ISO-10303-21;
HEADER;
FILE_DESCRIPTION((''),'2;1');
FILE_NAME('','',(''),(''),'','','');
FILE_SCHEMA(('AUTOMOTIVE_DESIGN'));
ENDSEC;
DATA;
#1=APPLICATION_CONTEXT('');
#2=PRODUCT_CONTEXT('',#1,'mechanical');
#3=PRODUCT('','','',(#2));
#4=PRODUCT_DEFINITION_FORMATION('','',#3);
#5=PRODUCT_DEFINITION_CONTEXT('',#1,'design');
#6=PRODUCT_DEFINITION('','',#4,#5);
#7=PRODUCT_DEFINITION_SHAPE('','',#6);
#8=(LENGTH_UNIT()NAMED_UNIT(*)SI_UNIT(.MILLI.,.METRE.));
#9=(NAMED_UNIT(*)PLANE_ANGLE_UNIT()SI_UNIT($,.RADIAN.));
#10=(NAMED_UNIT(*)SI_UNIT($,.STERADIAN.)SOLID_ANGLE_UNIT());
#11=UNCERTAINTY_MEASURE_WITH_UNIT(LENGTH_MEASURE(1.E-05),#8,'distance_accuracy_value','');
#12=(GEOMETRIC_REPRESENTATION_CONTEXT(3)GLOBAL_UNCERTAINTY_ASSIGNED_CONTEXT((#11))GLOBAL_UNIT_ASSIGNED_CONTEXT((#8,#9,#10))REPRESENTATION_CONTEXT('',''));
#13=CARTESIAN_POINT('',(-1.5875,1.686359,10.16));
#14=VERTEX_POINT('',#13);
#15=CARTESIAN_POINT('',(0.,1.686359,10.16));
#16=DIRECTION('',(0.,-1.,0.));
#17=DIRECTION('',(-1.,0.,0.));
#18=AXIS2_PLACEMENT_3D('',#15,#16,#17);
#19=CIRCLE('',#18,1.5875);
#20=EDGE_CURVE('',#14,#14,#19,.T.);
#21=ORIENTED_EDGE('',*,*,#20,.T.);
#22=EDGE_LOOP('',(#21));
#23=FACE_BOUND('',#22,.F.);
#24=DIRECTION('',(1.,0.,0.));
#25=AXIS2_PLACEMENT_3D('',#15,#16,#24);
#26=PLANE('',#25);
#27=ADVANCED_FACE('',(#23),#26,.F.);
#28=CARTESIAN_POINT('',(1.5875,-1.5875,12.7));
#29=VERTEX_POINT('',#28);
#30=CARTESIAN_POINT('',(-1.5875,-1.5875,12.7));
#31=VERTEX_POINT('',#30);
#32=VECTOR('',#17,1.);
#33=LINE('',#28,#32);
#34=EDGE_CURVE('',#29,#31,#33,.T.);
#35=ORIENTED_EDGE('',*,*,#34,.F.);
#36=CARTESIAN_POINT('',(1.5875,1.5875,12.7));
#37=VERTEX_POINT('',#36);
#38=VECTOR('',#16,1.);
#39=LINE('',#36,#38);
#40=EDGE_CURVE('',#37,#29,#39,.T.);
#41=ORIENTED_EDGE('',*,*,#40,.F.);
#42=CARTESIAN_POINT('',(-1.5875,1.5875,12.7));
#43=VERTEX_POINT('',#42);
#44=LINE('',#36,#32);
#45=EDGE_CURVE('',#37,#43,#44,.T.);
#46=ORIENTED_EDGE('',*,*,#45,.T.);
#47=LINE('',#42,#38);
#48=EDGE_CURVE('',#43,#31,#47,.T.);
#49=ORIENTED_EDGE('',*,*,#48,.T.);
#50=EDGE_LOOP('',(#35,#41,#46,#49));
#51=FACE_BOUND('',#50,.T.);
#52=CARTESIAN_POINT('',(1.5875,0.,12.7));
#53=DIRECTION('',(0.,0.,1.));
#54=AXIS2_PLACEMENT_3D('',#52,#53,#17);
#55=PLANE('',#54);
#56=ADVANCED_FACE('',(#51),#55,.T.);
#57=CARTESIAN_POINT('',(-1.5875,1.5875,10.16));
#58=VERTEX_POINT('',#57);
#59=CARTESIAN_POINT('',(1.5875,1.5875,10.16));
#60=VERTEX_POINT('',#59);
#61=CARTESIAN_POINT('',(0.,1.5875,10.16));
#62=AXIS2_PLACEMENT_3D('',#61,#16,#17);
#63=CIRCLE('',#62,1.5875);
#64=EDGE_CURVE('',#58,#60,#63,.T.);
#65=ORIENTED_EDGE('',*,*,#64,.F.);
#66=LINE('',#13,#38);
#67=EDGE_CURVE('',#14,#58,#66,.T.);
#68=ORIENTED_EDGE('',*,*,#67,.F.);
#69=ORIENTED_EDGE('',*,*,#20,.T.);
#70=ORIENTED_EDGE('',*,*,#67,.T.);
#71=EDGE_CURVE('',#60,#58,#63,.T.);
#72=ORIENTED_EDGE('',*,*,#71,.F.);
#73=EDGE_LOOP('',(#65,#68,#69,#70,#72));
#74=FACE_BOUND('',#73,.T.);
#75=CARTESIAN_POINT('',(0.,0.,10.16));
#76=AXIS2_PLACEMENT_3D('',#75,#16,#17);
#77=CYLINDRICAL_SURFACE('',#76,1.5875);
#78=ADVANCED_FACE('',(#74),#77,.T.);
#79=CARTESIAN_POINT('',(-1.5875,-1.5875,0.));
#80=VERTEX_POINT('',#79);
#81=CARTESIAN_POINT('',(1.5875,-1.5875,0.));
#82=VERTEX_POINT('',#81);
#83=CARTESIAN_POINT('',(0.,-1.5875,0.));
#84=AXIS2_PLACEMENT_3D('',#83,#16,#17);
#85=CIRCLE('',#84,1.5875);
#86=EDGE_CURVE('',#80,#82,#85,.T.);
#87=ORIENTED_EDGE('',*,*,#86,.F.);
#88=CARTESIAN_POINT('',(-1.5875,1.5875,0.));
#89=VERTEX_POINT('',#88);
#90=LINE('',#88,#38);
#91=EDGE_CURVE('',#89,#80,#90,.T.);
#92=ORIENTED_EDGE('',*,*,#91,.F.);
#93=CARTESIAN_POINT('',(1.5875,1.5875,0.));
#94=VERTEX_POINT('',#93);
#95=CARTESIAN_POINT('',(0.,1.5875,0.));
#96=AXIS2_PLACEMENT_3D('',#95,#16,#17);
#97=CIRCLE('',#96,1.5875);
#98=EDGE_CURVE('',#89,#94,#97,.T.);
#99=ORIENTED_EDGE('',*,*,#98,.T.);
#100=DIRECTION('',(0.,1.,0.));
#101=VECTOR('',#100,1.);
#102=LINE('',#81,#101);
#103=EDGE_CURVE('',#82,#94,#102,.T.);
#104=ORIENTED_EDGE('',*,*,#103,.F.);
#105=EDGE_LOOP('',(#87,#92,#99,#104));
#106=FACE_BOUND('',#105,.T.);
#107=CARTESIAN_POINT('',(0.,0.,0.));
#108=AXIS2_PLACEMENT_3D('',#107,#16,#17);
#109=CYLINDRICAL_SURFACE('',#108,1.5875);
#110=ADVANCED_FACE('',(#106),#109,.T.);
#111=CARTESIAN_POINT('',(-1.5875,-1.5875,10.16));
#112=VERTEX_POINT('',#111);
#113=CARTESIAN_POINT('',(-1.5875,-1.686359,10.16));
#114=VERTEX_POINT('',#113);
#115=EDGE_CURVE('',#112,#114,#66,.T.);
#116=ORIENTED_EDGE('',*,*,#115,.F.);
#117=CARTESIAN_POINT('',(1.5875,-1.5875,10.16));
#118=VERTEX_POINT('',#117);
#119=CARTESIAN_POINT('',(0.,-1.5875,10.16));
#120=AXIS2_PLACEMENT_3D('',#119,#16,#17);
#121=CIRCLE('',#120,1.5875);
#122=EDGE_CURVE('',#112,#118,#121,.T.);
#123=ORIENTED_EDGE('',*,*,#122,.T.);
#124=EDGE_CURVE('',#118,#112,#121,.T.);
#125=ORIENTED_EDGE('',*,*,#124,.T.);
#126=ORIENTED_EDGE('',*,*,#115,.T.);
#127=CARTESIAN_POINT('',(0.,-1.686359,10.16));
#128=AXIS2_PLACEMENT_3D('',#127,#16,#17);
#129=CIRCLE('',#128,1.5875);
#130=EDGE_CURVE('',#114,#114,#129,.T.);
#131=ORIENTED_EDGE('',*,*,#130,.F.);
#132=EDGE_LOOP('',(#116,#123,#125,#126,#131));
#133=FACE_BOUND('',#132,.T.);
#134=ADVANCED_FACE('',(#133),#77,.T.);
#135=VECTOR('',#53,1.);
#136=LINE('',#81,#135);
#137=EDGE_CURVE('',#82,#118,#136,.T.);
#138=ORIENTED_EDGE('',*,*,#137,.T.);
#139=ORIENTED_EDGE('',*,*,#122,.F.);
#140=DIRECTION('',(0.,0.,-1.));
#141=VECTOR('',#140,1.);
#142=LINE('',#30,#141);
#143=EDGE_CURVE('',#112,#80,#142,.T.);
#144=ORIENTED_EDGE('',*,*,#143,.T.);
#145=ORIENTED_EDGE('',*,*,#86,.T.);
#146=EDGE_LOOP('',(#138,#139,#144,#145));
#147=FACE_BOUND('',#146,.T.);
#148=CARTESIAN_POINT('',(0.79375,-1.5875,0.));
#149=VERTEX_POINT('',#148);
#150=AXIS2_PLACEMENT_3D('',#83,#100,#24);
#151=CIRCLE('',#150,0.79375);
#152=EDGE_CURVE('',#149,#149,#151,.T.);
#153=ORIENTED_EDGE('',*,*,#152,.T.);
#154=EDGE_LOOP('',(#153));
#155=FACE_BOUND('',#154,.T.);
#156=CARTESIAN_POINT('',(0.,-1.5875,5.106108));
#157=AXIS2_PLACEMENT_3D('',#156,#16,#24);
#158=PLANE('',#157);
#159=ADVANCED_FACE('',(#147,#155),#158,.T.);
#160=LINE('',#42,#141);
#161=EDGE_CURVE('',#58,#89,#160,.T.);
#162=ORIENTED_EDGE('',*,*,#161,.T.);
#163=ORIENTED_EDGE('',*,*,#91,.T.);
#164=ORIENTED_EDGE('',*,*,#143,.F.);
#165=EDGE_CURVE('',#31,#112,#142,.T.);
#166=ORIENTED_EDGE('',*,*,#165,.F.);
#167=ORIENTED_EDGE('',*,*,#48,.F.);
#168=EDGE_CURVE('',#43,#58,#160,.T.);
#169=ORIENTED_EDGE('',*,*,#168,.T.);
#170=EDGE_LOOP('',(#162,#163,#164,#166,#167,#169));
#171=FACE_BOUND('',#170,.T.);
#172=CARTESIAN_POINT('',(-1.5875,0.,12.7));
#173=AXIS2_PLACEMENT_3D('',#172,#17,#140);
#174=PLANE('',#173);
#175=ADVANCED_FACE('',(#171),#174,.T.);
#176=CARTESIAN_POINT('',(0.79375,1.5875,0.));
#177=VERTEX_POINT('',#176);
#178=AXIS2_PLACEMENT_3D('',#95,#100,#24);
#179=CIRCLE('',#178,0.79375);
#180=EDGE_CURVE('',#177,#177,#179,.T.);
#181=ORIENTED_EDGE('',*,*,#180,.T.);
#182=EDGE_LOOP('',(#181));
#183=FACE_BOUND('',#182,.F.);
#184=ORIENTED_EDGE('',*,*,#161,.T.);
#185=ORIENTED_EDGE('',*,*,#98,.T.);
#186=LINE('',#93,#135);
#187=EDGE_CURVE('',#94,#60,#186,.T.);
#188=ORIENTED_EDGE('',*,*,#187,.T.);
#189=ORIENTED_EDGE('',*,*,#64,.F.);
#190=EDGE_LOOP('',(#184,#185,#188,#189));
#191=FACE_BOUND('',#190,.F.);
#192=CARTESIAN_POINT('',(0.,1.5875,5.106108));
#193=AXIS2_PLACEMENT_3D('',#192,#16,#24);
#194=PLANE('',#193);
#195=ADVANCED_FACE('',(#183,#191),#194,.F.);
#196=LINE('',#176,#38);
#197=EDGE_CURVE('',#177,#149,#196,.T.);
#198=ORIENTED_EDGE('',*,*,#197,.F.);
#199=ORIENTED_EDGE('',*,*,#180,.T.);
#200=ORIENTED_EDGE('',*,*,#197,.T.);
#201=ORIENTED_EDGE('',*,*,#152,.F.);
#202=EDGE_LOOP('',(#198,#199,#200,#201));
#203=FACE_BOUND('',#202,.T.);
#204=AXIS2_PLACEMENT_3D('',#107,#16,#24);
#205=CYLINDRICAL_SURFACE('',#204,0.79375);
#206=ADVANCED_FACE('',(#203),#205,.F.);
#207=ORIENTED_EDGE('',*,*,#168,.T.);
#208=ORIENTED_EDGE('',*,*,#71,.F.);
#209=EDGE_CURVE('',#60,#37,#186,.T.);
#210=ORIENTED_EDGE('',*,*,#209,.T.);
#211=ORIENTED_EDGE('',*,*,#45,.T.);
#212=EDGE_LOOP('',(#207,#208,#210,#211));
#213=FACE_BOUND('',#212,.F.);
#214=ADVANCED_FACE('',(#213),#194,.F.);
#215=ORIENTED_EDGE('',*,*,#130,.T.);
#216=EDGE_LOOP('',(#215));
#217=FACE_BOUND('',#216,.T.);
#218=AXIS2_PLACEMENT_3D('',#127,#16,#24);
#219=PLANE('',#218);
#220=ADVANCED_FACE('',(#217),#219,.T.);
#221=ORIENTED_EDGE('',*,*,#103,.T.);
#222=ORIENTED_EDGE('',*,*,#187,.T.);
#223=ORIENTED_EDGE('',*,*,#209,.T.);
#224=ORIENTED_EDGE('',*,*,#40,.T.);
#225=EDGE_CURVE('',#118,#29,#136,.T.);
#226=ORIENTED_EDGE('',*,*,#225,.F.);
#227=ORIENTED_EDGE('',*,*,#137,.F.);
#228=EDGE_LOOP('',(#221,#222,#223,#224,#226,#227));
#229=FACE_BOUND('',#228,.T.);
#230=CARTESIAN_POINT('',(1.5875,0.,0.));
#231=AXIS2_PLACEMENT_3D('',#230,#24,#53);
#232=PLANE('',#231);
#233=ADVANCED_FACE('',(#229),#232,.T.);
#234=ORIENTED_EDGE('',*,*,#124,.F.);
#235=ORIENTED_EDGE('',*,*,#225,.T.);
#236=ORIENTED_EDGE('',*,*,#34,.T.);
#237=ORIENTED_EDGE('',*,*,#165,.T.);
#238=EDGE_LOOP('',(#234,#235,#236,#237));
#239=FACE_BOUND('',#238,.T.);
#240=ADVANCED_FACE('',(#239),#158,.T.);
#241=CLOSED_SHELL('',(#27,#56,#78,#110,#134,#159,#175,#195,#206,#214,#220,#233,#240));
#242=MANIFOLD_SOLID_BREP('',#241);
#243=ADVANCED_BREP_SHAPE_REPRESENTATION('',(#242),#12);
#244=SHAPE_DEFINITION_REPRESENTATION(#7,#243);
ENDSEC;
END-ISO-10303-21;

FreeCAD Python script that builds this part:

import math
import FreeCAD as App
import Part
import Sketcher
from FreeCAD import Vector
Q = App.Units.Quantity

doc = App.newDocument("Part")
body = doc.addObject("PartDesign::Body", "Body")

# Sketch on XZ plane
sketch1 = body.newObject("Sketcher::SketchObject", "Sketch")
sketch1.AttachmentSupport = (doc.getObject("XZ_Plane"), [""])
sketch1.MapMode = "FlatFace"
sketch1.addGeometry([
    Part.LineSegment(Vector(1.6, 0, 0), Vector(1.6, 12.7, 0)),  # 0
    Part.LineSegment(Vector(1.6, 12.7, 0), Vector(-1.6, 12.7, 0)),  # 1
    Part.LineSegment(Vector(-1.6, 12.7, 0), Vector(-1.6, 0, 0)),  # 2
    Part.ArcOfCircle(Part.Circle(Vector(0, 0, 0), Vector(0, 0, 1), 1.6), math.radians(180), math.radians(360)),  # 3
    Part.Circle(Vector(0, 0, 0), Vector(0, 0, 1), 0.8),  # 4
], False)
sketch1.addConstraint([
    Sketcher.Constraint("Coincident", 0, 2, 1, 1),
    Sketcher.Constraint("Coincident", 1, 2, 2, 1),
    Sketcher.Constraint("Tangent", 2, 2, 3, 1),
    Sketcher.Constraint("Tangent", 3, 2, 0, 1),
    Sketcher.Constraint("Vertical", 0),
    Sketcher.Constraint("Horizontal", 1),
    Sketcher.Constraint("Vertical", 2),
    Sketcher.Constraint("Coincident", 3, 3, -1, 1),
    Sketcher.Constraint("Coincident", 4, 3, -1, 1),
    Sketcher.Constraint("Diameter", 4, Q("0.0625 in")),
    Sketcher.Constraint("DistanceY", 0, 1, 0, 2, Q("0.5 in")),
    Sketcher.Constraint("Radius", 3, Q("0.0625 in")),
])
pad1 = body.newObject("PartDesign::Pad", "Pad")
pad1.Profile = sketch1
pad1.Length = Q("0.125 in")
pad1.Midplane = True

# Sketch on XZ plane
sketch2 = body.newObject("Sketcher::SketchObject", "Sketch001")
sketch2.AttachmentSupport = (doc.getObject("XZ_Plane"), [""])
sketch2.MapMode = "FlatFace"
sketch2.addGeometry(Part.Circle(Vector(0, 10.2, 0), Vector(0, 0, 1), 1.6), False)
sketch2.addConstraint([
    Sketcher.Constraint("PointOnObject", 0, 3, -2),
    Sketcher.Constraint("Diameter", 0, Q("0.125 in")),
    Sketcher.Constraint("DistanceY", -1, 1, 0, 3, Q("0.4 in")),
])
pad2 = body.newObject("PartDesign::Pad", "Pad001")
pad2.Profile = sketch2
pad2.Length = 3.372718
pad2.Midplane = True

doc.recompute()
